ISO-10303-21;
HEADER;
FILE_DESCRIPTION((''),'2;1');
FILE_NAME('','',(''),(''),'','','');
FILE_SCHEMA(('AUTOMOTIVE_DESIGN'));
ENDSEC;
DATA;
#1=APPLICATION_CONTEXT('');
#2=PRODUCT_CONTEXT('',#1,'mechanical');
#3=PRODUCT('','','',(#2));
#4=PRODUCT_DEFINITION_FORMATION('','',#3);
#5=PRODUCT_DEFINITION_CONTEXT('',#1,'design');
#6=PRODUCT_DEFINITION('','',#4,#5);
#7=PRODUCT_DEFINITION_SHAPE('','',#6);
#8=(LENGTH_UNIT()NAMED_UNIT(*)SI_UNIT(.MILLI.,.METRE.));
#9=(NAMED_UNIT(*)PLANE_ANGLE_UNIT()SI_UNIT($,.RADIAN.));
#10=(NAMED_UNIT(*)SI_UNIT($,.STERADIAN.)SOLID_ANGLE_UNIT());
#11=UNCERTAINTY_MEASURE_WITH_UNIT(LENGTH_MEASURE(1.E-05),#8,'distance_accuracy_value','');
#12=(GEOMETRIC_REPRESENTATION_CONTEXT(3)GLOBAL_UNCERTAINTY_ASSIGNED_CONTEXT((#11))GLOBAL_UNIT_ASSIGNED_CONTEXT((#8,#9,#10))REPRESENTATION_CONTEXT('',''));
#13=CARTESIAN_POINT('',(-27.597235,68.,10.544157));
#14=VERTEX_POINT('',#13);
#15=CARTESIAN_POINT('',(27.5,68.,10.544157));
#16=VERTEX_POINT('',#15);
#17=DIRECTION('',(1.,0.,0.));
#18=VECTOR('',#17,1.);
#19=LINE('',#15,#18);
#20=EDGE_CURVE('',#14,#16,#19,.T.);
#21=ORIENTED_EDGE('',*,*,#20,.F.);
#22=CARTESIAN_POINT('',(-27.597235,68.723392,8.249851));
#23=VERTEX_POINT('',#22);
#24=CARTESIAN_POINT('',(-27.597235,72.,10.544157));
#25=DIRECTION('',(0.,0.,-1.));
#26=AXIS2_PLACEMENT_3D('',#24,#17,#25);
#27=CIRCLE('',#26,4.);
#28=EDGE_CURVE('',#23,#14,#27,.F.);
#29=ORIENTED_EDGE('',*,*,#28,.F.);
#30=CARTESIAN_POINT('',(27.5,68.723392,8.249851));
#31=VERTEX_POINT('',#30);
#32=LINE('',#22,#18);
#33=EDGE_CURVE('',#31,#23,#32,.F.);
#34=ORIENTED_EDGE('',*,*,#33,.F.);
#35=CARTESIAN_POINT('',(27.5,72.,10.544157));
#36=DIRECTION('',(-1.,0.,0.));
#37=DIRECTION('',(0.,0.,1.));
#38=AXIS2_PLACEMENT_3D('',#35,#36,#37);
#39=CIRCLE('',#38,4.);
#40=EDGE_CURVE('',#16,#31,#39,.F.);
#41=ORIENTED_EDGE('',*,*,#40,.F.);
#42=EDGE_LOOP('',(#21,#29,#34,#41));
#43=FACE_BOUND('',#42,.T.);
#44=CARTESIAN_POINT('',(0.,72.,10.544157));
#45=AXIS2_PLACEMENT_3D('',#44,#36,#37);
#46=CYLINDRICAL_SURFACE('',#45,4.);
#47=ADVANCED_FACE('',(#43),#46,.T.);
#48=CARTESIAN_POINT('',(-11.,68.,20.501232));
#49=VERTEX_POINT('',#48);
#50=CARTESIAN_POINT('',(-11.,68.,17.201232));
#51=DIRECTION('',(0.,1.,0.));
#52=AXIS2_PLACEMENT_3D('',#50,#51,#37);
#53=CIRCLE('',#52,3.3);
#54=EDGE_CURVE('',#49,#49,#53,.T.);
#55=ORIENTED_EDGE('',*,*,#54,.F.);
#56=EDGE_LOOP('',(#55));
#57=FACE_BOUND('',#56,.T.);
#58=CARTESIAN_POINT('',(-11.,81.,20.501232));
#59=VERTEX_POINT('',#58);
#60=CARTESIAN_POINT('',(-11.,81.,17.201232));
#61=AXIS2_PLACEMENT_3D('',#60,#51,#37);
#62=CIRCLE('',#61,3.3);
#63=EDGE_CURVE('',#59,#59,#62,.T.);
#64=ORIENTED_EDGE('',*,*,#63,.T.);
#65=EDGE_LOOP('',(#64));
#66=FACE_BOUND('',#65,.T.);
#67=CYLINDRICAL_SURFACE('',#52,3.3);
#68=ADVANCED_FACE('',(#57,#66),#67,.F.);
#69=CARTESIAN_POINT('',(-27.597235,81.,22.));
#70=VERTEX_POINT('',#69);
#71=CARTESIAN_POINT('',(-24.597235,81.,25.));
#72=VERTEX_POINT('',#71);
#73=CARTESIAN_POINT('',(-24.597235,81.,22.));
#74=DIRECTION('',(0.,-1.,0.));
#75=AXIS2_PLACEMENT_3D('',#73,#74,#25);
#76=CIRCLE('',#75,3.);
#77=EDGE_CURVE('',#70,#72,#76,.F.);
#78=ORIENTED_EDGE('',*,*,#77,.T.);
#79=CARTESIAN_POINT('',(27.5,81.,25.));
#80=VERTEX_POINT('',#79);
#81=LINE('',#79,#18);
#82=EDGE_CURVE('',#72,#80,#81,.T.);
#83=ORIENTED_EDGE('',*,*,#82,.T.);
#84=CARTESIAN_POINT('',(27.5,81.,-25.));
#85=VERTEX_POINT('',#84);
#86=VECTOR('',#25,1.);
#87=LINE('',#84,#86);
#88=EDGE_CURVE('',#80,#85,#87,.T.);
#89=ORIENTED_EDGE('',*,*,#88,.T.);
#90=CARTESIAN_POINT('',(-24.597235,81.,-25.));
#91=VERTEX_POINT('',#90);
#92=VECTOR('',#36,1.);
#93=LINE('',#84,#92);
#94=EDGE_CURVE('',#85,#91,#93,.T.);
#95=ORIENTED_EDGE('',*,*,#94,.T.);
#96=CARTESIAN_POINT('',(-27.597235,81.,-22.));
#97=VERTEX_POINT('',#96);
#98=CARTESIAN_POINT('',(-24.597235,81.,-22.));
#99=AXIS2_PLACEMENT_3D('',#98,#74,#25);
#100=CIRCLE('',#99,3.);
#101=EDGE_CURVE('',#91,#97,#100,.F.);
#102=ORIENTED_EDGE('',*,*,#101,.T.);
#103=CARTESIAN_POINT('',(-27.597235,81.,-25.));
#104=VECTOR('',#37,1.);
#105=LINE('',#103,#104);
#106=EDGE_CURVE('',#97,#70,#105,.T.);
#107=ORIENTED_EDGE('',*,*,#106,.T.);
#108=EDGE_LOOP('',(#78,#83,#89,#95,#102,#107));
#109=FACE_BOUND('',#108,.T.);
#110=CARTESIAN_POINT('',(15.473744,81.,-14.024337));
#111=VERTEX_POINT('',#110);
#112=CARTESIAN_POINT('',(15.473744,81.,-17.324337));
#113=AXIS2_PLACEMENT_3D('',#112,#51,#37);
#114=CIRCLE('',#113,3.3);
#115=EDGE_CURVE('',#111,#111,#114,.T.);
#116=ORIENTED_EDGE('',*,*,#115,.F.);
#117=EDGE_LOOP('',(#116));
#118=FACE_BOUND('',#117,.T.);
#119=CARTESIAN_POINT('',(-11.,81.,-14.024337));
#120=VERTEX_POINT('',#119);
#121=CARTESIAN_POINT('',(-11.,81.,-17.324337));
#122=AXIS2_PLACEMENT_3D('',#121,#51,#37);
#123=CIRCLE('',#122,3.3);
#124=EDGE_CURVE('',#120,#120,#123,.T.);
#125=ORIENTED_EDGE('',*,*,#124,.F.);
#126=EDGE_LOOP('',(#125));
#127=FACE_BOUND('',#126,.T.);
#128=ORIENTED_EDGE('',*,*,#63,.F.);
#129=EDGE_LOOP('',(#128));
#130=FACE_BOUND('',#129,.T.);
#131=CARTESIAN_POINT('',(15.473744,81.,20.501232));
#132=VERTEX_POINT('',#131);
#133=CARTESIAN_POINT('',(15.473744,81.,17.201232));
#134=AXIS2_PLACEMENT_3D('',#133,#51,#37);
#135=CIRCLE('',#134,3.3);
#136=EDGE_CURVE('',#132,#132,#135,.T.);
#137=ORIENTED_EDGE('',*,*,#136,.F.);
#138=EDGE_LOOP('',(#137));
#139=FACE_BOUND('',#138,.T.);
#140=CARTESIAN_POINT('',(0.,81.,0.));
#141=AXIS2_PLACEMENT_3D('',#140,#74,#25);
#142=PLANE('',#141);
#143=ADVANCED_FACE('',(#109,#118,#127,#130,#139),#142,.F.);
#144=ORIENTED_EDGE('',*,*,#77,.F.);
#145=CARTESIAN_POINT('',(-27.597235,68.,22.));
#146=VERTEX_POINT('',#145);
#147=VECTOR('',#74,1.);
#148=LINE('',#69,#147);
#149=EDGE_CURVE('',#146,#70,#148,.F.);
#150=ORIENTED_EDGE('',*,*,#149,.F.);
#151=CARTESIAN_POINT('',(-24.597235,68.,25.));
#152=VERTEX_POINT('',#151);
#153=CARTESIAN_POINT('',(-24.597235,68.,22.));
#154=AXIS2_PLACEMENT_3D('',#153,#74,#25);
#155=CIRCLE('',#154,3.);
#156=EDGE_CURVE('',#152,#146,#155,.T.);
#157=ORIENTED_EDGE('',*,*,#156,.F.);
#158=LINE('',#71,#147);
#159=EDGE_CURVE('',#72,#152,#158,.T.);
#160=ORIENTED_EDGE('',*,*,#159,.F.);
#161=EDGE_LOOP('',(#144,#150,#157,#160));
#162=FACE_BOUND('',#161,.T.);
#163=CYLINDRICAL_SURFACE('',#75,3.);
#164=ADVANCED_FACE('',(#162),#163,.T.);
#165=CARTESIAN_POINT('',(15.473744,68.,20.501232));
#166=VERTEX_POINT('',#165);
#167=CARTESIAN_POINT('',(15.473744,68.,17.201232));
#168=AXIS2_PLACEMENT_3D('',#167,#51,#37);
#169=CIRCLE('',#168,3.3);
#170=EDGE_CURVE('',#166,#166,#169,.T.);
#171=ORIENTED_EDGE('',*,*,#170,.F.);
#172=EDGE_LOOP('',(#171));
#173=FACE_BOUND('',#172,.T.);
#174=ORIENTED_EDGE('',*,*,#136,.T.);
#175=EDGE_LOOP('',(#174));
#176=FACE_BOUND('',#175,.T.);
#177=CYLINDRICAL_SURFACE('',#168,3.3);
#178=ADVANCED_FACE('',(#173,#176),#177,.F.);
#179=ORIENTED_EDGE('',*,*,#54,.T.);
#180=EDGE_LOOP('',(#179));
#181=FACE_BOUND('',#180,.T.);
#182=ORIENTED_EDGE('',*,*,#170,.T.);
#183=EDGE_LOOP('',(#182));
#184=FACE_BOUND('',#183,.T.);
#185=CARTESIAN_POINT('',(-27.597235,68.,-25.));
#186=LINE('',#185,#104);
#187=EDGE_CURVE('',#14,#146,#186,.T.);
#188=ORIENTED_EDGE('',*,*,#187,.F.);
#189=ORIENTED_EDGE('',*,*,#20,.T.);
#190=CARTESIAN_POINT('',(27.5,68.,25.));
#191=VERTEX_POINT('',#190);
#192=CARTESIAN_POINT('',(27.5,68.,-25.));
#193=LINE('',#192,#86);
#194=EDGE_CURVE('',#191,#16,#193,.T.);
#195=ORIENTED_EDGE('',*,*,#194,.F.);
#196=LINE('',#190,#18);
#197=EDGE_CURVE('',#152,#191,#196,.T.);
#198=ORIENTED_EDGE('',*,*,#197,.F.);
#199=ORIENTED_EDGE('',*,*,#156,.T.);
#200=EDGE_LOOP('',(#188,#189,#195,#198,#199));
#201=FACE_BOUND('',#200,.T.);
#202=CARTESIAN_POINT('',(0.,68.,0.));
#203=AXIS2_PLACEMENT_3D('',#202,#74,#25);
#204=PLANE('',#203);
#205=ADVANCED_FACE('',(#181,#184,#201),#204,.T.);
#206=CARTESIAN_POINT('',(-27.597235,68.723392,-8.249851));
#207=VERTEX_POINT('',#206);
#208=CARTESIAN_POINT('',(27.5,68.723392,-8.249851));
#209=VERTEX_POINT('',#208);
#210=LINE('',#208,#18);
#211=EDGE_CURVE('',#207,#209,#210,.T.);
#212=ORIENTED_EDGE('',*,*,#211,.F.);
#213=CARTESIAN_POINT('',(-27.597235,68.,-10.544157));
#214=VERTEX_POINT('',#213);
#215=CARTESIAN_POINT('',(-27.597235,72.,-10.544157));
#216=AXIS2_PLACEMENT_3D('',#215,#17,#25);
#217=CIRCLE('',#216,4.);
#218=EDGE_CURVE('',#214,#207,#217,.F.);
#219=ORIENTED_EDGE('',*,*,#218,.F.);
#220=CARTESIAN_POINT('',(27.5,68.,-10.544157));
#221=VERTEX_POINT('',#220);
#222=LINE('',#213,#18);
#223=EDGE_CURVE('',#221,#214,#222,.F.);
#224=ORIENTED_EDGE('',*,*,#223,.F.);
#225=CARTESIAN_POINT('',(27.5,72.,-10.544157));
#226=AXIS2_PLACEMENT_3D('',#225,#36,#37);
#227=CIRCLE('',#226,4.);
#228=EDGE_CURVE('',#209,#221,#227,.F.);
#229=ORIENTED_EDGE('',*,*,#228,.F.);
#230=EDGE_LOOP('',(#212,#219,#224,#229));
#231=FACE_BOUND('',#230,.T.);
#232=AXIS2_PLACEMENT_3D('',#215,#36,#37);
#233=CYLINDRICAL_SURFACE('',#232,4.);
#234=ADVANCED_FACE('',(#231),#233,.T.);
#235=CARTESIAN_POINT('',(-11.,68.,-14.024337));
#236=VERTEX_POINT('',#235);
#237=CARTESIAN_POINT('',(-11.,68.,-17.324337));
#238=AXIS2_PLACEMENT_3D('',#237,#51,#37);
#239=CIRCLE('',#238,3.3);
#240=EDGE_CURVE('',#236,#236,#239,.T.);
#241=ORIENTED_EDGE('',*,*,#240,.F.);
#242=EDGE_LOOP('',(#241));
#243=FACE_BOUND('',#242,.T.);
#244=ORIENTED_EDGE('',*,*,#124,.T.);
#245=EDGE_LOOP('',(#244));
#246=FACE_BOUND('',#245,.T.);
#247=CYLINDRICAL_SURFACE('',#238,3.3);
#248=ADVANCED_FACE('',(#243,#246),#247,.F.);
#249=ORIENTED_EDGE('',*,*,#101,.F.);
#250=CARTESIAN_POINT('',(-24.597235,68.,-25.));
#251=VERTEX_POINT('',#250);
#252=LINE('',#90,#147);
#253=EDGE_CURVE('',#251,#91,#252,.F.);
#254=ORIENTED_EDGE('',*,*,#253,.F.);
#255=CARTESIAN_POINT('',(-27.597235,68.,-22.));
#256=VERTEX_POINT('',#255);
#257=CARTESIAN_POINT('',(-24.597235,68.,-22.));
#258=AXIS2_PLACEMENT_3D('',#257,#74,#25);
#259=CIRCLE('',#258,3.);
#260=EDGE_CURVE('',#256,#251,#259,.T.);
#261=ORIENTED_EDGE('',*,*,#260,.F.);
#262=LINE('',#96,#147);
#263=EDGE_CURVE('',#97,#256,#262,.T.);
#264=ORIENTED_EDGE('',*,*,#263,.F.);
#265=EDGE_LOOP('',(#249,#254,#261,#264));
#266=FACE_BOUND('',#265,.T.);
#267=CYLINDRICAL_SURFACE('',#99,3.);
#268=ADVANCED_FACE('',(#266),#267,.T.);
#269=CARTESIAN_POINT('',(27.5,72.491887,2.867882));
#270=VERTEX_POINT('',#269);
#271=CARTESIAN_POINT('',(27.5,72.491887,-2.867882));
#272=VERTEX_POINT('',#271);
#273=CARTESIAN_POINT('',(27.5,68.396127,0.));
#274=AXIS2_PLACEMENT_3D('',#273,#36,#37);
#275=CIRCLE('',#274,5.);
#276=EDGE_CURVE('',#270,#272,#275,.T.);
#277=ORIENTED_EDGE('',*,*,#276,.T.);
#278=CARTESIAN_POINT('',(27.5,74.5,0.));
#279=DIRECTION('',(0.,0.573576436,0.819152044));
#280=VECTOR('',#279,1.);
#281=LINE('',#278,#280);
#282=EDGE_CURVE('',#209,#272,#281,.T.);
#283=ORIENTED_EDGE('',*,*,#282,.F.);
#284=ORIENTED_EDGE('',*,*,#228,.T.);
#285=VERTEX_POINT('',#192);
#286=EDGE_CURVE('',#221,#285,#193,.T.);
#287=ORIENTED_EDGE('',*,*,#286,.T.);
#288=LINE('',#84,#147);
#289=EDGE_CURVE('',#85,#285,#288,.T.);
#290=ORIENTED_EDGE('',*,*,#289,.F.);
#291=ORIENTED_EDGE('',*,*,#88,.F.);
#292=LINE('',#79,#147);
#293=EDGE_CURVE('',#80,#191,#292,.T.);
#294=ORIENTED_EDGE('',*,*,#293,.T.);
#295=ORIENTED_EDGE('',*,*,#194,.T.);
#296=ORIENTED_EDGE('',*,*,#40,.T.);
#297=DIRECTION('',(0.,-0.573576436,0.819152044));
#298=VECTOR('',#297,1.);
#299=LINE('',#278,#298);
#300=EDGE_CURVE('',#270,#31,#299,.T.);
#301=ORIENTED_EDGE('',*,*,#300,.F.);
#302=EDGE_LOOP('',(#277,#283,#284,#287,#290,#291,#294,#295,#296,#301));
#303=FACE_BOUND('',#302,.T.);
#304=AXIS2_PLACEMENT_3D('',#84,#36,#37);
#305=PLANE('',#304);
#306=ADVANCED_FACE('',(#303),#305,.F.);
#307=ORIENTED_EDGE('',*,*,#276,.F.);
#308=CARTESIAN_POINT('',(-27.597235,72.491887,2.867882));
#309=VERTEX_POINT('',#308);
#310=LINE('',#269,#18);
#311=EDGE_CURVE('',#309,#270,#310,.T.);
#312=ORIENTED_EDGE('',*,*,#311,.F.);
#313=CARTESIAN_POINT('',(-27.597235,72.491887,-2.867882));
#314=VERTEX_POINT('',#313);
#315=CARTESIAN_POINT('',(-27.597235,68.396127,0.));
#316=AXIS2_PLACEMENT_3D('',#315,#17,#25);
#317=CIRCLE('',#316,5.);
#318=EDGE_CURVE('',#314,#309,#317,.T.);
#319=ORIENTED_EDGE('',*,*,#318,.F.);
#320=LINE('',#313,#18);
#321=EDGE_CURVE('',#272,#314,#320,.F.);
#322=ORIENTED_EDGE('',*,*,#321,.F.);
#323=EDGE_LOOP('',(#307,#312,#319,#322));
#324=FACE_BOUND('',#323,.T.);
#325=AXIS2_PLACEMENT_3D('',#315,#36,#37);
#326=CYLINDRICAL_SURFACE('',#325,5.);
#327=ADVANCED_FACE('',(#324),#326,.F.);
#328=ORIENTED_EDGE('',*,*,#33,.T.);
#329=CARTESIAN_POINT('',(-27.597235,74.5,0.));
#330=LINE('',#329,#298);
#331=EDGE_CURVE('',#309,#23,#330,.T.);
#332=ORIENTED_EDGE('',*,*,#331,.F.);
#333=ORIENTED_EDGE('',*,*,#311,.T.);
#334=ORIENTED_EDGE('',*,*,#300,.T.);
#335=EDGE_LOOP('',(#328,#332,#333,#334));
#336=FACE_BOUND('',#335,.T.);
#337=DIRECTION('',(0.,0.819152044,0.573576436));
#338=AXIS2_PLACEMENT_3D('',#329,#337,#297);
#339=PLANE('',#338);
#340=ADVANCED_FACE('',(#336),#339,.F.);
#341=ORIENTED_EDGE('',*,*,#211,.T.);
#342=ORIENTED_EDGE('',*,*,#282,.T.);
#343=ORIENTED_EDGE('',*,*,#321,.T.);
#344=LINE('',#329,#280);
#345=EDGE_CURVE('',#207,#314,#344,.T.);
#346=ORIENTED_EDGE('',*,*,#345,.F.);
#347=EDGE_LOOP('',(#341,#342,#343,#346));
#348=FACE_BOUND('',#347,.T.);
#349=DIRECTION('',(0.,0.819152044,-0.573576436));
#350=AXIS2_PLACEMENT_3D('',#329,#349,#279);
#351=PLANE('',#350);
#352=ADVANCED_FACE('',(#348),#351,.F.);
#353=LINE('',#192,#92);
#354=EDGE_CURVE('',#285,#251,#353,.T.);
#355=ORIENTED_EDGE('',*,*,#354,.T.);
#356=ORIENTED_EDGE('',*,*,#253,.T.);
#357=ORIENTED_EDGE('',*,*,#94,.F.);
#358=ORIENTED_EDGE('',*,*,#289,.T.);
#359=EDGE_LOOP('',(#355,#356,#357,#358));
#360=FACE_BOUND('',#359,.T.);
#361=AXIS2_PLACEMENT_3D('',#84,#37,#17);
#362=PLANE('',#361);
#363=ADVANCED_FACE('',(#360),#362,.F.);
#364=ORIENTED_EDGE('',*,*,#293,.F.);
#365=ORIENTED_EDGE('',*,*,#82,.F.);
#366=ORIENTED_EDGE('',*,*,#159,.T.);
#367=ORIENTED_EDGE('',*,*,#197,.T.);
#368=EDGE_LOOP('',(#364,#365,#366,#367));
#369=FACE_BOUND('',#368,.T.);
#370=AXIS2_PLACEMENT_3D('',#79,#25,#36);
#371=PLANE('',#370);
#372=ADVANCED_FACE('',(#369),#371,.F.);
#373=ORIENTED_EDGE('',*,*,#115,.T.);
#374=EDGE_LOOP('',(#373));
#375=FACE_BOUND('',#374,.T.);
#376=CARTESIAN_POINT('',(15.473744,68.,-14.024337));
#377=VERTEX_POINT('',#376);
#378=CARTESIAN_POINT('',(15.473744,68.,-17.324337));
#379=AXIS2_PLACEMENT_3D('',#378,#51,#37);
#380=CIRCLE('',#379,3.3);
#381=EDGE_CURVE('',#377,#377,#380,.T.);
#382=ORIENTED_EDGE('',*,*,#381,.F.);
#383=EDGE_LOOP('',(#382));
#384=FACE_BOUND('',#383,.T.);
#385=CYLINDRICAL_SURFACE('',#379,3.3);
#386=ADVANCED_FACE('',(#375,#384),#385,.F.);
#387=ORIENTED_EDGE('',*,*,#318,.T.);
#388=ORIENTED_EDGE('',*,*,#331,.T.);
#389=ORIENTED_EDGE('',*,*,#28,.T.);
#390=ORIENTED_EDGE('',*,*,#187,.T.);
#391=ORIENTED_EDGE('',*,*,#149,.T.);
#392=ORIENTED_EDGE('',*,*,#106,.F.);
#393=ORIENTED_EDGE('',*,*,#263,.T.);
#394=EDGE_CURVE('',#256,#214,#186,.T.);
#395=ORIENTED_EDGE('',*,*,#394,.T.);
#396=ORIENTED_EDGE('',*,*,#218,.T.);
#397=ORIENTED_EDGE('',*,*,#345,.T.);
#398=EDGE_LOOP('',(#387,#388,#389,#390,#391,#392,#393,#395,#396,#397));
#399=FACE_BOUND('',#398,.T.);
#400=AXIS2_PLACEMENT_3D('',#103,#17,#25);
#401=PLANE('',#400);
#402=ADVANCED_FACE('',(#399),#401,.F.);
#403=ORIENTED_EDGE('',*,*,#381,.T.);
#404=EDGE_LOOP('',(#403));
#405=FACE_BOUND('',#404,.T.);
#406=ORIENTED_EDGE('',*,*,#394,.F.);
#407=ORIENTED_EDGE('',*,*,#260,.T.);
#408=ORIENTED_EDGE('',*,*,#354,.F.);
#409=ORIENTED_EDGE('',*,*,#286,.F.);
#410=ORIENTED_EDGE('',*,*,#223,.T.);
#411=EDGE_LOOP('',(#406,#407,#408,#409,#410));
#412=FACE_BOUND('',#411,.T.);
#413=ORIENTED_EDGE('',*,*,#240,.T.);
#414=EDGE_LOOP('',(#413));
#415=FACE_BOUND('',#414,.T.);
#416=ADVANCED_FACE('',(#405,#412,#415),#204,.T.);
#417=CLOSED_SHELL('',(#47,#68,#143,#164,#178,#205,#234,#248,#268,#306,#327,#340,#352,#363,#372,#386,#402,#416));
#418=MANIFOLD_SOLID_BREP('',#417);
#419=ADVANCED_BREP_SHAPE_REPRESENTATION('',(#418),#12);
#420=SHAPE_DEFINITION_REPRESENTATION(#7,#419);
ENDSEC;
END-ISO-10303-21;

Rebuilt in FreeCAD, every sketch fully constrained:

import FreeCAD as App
import Part
import Sketcher

V = App.Vector
Q = App.Units.Quantity


def edges_at(feature, points):
    """Names of the edges that pass closest to the given points."""
    edges = feature.Shape.Edges
    near = lambda p: min(range(len(edges)), key=lambda i: edges[i].distToShape(Part.Vertex(*p))[0])
    return sorted({f"Edge{near(p) + 1}" for p in points})

doc = App.newDocument("Part")
params = doc.addObject("Spreadsheet::Sheet", "Params")
for row, (alias, value) in enumerate([
    ("sketch1_height", "50 mm"),
    ("pad1_length", "13 mm"),
    ("fillet_radius", "3 mm"),
    ("sketch3_diameter", "6.6 mm"),
    ("fillet2_radius", "5 mm"),
    ("fillet3_radius", "4 mm"),
], start=1):
    params.set(f"A{row}", alias)
    params.set(f"B{row}", "=" + value)
    params.setAlias(f"B{row}", alias)

body = doc.addObject("PartDesign::Body", "Body")

sketch1 = body.newObject("Sketcher::SketchObject", "Sketch")
sketch1.AttachmentSupport = (doc.getObject("XZ_Plane"), [""])
sketch1.MapMode = "FlatFace"
sketch1.AttachmentOffset = App.Placement(V(0, 0, -68), App.Rotation())
sketch1.addGeometry(Part.LineSegment(V(-28, -25, 0), V(-28, 25, 0)), False)
sketch1.addGeometry(Part.LineSegment(V(-28, 25, 0), V(28, 25, 0)), False)
sketch1.addGeometry(Part.LineSegment(V(28, 25, 0), V(28, -25, 0)), False)
sketch1.addGeometry(Part.LineSegment(V(28, -25, 0), V(-28, -25, 0)), False)
sketch1.addConstraint(Sketcher.Constraint("Coincident", 0, 2, 1, 1))
sketch1.addConstraint(Sketcher.Constraint("Coincident", 1, 2, 2, 1))
sketch1.addConstraint(Sketcher.Constraint("Coincident", 2, 2, 3, 1))
sketch1.addConstraint(Sketcher.Constraint("Coincident", 3, 2, 0, 1))
sketch1.addConstraint(Sketcher.Constraint("Vertical", 0))
sketch1.addConstraint(Sketcher.Constraint("Horizontal", 1))
sketch1.addConstraint(Sketcher.Constraint("Vertical", 2))
sketch1.addConstraint(Sketcher.Constraint("Horizontal", 3))
sketch1.addConstraint(Sketcher.Constraint("DistanceY", 0, 1, 0, 2, 50.0))
sketch1.addConstraint(Sketcher.Constraint("DistanceY", -1, 1, 0, 2, 25.0))
sketch1.addConstraint(Sketcher.Constraint("DistanceX", -1, 1, 1, 2, 27.5))
sketch1.addConstraint(Sketcher.Constraint("DistanceX", 1, 1, 1, 2, 55.097235))
sketch1.setExpression("Constraints[8]", "Params.sketch1_height")
pad1 = body.newObject("PartDesign::Pad", "Pad")
pad1.Profile = sketch1
pad1.setExpression("Length", "Params.pad1_length")
pad1.Reversed = True

sketch2 = body.newObject("Sketcher::SketchObject", "Sketch001")
sketch2.AttachmentSupport = (doc.getObject("YZ_Plane"), [""])
sketch2.MapMode = "FlatFace"
sketch2.AttachmentOffset = App.Placement(V(0, 0, 27.5), App.Rotation())
sketch2.addGeometry(Part.LineSegment(V(74, 0, 0), V(68, 9, 0)), False)
sketch2.addGeometry(Part.LineSegment(V(68, 9, 0), V(62, 0, 0)), False)
sketch2.addGeometry(Part.LineSegment(V(62, 0, 0), V(68, -9, 0)), False)
sketch2.addGeometry(Part.LineSegment(V(68, -9, 0), V(74, 0, 0)), False)
sketch2.addConstraint(Sketcher.Constraint("Coincident", 0, 2, 1, 1))
sketch2.addConstraint(Sketcher.Constraint("Coincident", 1, 2, 2, 1))
sketch2.addConstraint(Sketcher.Constraint("Coincident", 2, 2, 3, 1))
sketch2.addConstraint(Sketcher.Constraint("Coincident", 3, 2, 0, 1))
sketch2.addConstraint(Sketcher.Constraint("Symmetric", 0, 2, 2, 2, -1))
sketch2.addConstraint(Sketcher.Constraint("PointOnObject", 1, 2, -1))
sketch2.addConstraint(Sketcher.Constraint("PointOnObject", 3, 2, -1))
sketch2.addConstraint(Sketcher.Constraint("Parallel", 0, 2))
sketch2.addConstraint(Sketcher.Constraint("Angle", 0, Q("125 deg")))
sketch2.addConstraint(Sketcher.Constraint("DistanceX", -1, 1, 0, 2, 68.0))
sketch2.addConstraint(Sketcher.Constraint("DistanceX", 1, 2, 3, 2, 13.0))
pocket1 = body.newObject("PartDesign::Pocket", "Pocket")
pocket1.Profile = sketch2
pocket1.Type = "ThroughAll"
doc.recompute()

fillet = body.newObject("PartDesign::Fillet", "Fillet")
fillet.Base = (pocket1, edges_at(pocket1, [(-27.597, 74.5, 25), (-27.597, 74.5, -25)]))
fillet.setExpression("Radius", "Params.fillet_radius")

sketch3 = body.newObject("Sketcher::SketchObject", "Sketch002")
sketch3.AttachmentSupport = (doc.getObject("XZ_Plane"), [""])
sketch3.MapMode = "FlatFace"
sketch3.AttachmentOffset = App.Placement(V(0, 0, -81), App.Rotation())
sketch3.addGeometry(Part.Circle(V(15.5, 17.2, 0), V(0, 0, 1), 3.3), False)
sketch3.addGeometry(Part.Circle(V(-11, 17.2, 0), V(0, 0, 1), 3.3), False)
sketch3.addGeometry(Part.Circle(V(15.5, -17.3, 0), V(0, 0, 1), 3.3), False)
sketch3.addGeometry(Part.Circle(V(-11, -17.3, 0), V(0, 0, 1), 3.3), False)
sketch3.addConstraint(Sketcher.Constraint("Equal", 0, 1))
sketch3.addConstraint(Sketcher.Constraint("Equal", 1, 2))
sketch3.addConstraint(Sketcher.Constraint("Equal", 2, 3))
sketch3.addConstraint(Sketcher.Constraint("Horizontal", 0, 3, 1, 3))
sketch3.addConstraint(Sketcher.Constraint("Horizontal", 2, 3, 3, 3))
sketch3.addConstraint(Sketcher.Constraint("Vertical", 0, 3, 2, 3))
sketch3.addConstraint(Sketcher.Constraint("Vertical", 1, 3, 3, 3))
sketch3.addConstraint(Sketcher.Constraint("Diameter", 0, 6.6))
sketch3.addConstraint(Sketcher.Constraint("DistanceX", 1, 3, -1, 1, 11.0))
sketch3.addConstraint(Sketcher.Constraint("DistanceY", 2, 3, 0, 3, 34.525569))
sketch3.addConstraint(Sketcher.Constraint("DistanceX", -1, 1, 0, 3, 15.473744))
sketch3.addConstraint(Sketcher.Constraint("DistanceY", -1, 1, 0, 3, 17.201232))
sketch3.setExpression("Constraints[7]", "Params.sketch3_diameter")
pocket2 = body.newObject("PartDesign::Pocket", "Pocket001")
pocket2.Profile = sketch3
pocket2.Type = "ThroughAll"
pocket2.Reversed = True
doc.recompute()

fillet2 = body.newObject("PartDesign::Fillet", "Fillet001")
fillet2.Base = (pocket2, edges_at(pocket2, [(-0.049, 74.5, 0)]))
fillet2.setExpression("Radius", "Params.fillet2_radius")
doc.recompute()

fillet3 = body.newObject("PartDesign::Fillet", "Fillet002")
fillet3.Base = (fillet2, edges_at(fillet2, [(-0.049, 68, -9.283), (-0.049, 68, 9.283)]))
fillet3.setExpression("Radius", "Params.fillet3_radius")

doc.recompute()
